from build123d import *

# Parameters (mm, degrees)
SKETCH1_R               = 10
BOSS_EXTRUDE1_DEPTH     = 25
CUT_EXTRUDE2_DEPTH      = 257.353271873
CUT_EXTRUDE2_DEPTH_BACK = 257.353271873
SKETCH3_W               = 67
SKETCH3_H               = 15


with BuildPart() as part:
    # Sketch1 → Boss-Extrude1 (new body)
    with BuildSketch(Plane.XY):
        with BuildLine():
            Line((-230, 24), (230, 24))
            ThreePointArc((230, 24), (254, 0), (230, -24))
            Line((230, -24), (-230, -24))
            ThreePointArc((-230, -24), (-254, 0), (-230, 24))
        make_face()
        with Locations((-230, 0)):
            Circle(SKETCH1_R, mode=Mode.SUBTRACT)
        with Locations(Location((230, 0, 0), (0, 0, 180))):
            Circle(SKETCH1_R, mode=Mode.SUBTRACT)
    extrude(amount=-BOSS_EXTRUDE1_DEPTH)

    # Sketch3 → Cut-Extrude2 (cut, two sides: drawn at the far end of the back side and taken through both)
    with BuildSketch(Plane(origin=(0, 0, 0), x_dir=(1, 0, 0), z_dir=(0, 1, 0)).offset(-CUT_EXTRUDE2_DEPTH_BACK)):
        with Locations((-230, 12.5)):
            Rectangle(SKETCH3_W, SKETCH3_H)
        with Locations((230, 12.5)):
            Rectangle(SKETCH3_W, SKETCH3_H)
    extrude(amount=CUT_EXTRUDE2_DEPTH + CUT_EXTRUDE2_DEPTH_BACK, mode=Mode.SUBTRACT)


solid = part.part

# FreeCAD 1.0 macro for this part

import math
import FreeCAD as App
import Part
import Sketcher
Q = App.Units.Quantity

doc = App.newDocument("Part")
params = doc.addObject("Spreadsheet::Sheet", "Params")
for row, (alias, value) in enumerate([
    ("sketch1_diameter", "20 mm"),
    ("sketch1_radius", "24 mm"),
    ("sketch1_width", "460 mm"),
    ("pad1_length", "25 mm"),
    ("sketch2_width", "67 mm"),
    ("sketch2_height", "15 mm"),
], start=1):
    params.set(f"A{row}", alias)
    params.set(f"B{row}", "=" + value)
    params.setAlias(f"B{row}", alias)

body = doc.addObject("PartDesign::Body", "Body")

sketch1 = body.newObject("Sketcher::SketchObject", "Sketch")
sketch1.AttachmentSupport = (doc.getObject("XY_Plane"), [""])
sketch1.MapMode = "FlatFace"
sketch1.addGeometry(Part.LineSegment(App.Vector(230, 24, 0), App.Vector(-230, 24, 0)), False)
sketch1.addGeometry(Part.ArcOfCircle(Part.Circle(App.Vector(-230, 0, 0), App.Vector(0, 0, 1), 24), math.radians(90), math.radians(270)), False)
sketch1.addGeometry(Part.LineSegment(App.Vector(-230, -24, 0), App.Vector(230, -24, 0)), False)
sketch1.addGeometry(Part.ArcOfCircle(Part.Circle(App.Vector(230, 0, 0), App.Vector(0, 0, 1), 24), math.radians(-90), math.radians(90)), False)
sketch1.addGeometry(Part.Circle(App.Vector(230, 0, 0), App.Vector(0, 0, 1), 10), False)
sketch1.addGeometry(Part.Circle(App.Vector(-230, 0, 0), App.Vector(0, 0, 1), 10), False)
sketch1.addConstraint(Sketcher.Constraint("Tangent", 0, 2, 1, 1))
sketch1.addConstraint(Sketcher.Constraint("Tangent", 1, 2, 2, 1))
sketch1.addConstraint(Sketcher.Constraint("Tangent", 2, 2, 3, 1))
sketch1.addConstraint(Sketcher.Constraint("Tangent", 3, 2, 0, 1))
sketch1.addConstraint(Sketcher.Constraint("Horizontal", 0))
sketch1.addConstraint(Sketcher.Constraint("Horizontal", 2))
sketch1.addConstraint(Sketcher.Constraint("Coincident", 4, 3, 3, 3))
sketch1.addConstraint(Sketcher.Constraint("Coincident", 5, 3, 1, 3))
sketch1.addConstraint(Sketcher.Constraint("Equal", 4, 5))
sketch1.addConstraint(Sketcher.Constraint("Symmetric", 1, 3, 3, 3, -1, 1))
sketch1.addConstraint(Sketcher.Constraint("Diameter", 4, Q("20 mm")))
sketch1.addConstraint(Sketcher.Constraint("Radius", 1, Q("24 mm")))
sketch1.addConstraint(Sketcher.Constraint("DistanceX", 0, 2, 0, 1, Q("460 mm")))
sketch1.setExpression("Constraints[10]", "Params.sketch1_diameter")
sketch1.setExpression("Constraints[11]", "Params.sketch1_radius")
sketch1.setExpression("Constraints[12]", "Params.sketch1_width")
pad1 = body.newObject("PartDesign::Pad", "Pad")
pad1.Profile = sketch1
pad1.setExpression("Length", "Params.pad1_length")
pad1.Reversed = True

sketch2 = body.newObject("Sketcher::SketchObject", "Sketch001")
sketch2.AttachmentSupport = (doc.getObject("XZ_Plane"), [""])
sketch2.MapMode = "FlatFace"
sketch2.addGeometry(Part.LineSegment(App.Vector(-264, -20, 0), App.Vector(-264, -5, 0)), False)
sketch2.addGeometry(Part.LineSegment(App.Vector(-264, -5, 0), App.Vector(-196, -5, 0)), False)
sketch2.addGeometry(Part.LineSegment(App.Vector(-196, -5, 0), App.Vector(-196, -20, 0)), False)
sketch2.addGeometry(Part.LineSegment(App.Vector(-196, -20, 0), App.Vector(-264, -20, 0)), False)
sketch2.addGeometry(Part.LineSegment(App.Vector(196, -20, 0), App.Vector(196, -5, 0)), False)
sketch2.addGeometry(Part.LineSegment(App.Vector(196, -5, 0), App.Vector(264, -5, 0)), False)
sketch2.addGeometry(Part.LineSegment(App.Vector(264, -5, 0), App.Vector(264, -20, 0)), False)
sketch2.addGeometry(Part.LineSegment(App.Vector(264, -20, 0), App.Vector(196, -20, 0)), False)
sketch2.addConstraint(Sketcher.Constraint("Coincident", 0, 2, 1, 1))
sketch2.addConstraint(Sketcher.Constraint("Coincident", 1, 2, 2, 1))
sketch2.addConstraint(Sketcher.Constraint("Coincident", 2, 2, 3, 1))
sketch2.addConstraint(Sketcher.Constraint("Coincident", 3, 2, 0, 1))
sketch2.addConstraint(Sketcher.Constraint("Coincident", 4, 2, 5, 1))
sketch2.addConstraint(Sketcher.Constraint("Coincident", 5, 2, 6, 1))
sketch2.addConstraint(Sketcher.Constraint("Coincident", 6, 2, 7, 1))
sketch2.addConstraint(Sketcher.Constraint("Coincident", 7, 2, 4, 1))
sketch2.addConstraint(Sketcher.Constraint("Vertical", 0))
sketch2.addConstraint(Sketcher.Constraint("Horizontal", 1))
sketch2.addConstraint(Sketcher.Constraint("Vertical", 2))
sketch2.addConstraint(Sketcher.Constraint("Horizontal", 3))
sketch2.addConstraint(Sketcher.Constraint("Vertical", 4))
sketch2.addConstraint(Sketcher.Constraint("Horizontal", 5))
sketch2.addConstraint(Sketcher.Constraint("Vertical", 6))
sketch2.addConstraint(Sketcher.Constraint("Horizontal", 7))
sketch2.addConstraint(Sketcher.Constraint("Symmetric", 1, 2, 4, 2, -2))
sketch2.addConstraint(Sketcher.Constraint("Symmetric", 3, 2, 6, 2, -2))
sketch2.addConstraint(Sketcher.Constraint("DistanceX", 1, 1, 1, 2, Q("67 mm")))
sketch2.addConstraint(Sketcher.Constraint("DistanceY", 0, 1, 0, 2, Q("15 mm")))
sketch2.addConstraint(Sketcher.Constraint("DistanceY", 0, 2, -1, 1, Q("5 mm")))
sketch2.addConstraint(Sketcher.Constraint("DistanceX", 1, 2, 4, 2, Q("393 mm")))
sketch2.setExpression("Constraints[18]", "Params.sketch2_width")
sketch2.setExpression("Constraints[19]", "Params.sketch2_height")
pocket1 = body.newObject("PartDesign::Pocket", "Pocket")
pocket1.Profile = sketch2
pocket1.Type = "ThroughAll"
pocket1.Midplane = True

doc.recompute()
